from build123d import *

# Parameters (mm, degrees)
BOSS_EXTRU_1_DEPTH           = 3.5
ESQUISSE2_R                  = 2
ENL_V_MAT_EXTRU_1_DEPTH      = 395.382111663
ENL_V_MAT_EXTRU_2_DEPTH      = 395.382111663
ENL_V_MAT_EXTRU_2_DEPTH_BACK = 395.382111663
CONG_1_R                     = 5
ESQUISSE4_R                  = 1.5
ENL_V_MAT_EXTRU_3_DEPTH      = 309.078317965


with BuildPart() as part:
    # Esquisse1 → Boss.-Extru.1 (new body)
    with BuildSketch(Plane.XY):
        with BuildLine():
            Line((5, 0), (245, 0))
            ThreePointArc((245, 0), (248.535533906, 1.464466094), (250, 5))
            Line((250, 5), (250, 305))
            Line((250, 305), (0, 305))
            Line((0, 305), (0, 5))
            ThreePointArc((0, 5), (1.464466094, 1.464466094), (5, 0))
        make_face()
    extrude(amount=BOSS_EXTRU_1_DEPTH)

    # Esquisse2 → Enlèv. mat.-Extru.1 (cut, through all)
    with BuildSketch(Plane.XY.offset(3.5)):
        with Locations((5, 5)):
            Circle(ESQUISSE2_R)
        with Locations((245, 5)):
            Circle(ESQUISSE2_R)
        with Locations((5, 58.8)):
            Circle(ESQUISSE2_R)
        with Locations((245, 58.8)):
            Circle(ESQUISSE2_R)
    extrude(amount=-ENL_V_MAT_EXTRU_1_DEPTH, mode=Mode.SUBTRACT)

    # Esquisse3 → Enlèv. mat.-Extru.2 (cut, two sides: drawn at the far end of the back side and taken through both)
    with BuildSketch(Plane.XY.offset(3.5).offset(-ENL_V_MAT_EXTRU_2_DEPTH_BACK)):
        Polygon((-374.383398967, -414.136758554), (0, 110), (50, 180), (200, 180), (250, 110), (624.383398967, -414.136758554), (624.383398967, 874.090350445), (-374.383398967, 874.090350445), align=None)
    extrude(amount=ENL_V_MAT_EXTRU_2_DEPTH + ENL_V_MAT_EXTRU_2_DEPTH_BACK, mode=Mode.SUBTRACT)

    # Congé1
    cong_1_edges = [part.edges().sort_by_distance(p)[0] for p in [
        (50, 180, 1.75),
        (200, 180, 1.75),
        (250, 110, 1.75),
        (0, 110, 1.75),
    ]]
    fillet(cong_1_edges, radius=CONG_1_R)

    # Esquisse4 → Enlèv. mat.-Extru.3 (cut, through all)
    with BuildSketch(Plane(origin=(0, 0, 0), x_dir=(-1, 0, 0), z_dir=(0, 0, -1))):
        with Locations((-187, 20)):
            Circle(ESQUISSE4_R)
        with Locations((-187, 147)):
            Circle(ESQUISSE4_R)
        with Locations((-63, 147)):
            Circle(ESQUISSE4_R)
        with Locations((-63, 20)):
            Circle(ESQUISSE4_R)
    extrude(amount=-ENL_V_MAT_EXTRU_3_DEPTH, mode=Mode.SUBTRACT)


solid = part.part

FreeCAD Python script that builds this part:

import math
import FreeCAD as App
import Part
import Sketcher
from FreeCAD import Vector
Q = App.Units.Quantity


def edges_at(feature, points):
    """Names of the edges that pass closest to the given points."""
    edges = feature.Shape.Edges
    near = lambda p: min(range(len(edges)), key=lambda i: edges[i].distToShape(Part.Vertex(*p))[0])
    return sorted({f"Edge{near(p) + 1}" for p in points})

doc = App.newDocument("Part")
body = doc.addObject("PartDesign::Body", "Body")

# Sketch on XY plane
sketch1 = body.newObject("Sketcher::SketchObject", "Sketch")
sketch1.AttachmentSupport = (doc.getObject("XY_Plane"), [""])
sketch1.MapMode = "FlatFace"
sketch1.addGeometry(Part.LineSegment(Vector(5, 0, 0), Vector(245, 0, 0)), False)
sketch1.addGeometry(Part.ArcOfCircle(Part.Circle(Vector(245, 5, 0), Vector(0, 0, 1), 5), math.radians(-90), math.radians(0)), False)
sketch1.addGeometry(Part.LineSegment(Vector(250, 5, 0), Vector(250, 305, 0)), False)
sketch1.addGeometry(Part.LineSegment(Vector(250, 305, 0), Vector(0, 305, 0)), False)
sketch1.addGeometry(Part.LineSegment(Vector(0, 305, 0), Vector(0, 5, 0)), False)
sketch1.addGeometry(Part.ArcOfCircle(Part.Circle(Vector(5, 5, 0), Vector(0, 0, 1), 5), math.radians(180), math.radians(270)), False)
sketch1.addConstraint(Sketcher.Constraint("Tangent", 0, 2, 1, 1))
sketch1.addConstraint(Sketcher.Constraint("Tangent", 1, 2, 2, 1))
sketch1.addConstraint(Sketcher.Constraint("Coincident", 2, 2, 3, 1))
sketch1.addConstraint(Sketcher.Constraint("Coincident", 3, 2, 4, 1))
sketch1.addConstraint(Sketcher.Constraint("Tangent", 4, 2, 5, 1))
sketch1.addConstraint(Sketcher.Constraint("Tangent", 5, 2, 0, 1))
sketch1.addConstraint(Sketcher.Constraint("Horizontal", 0))
sketch1.addConstraint(Sketcher.Constraint("Vertical", 2))
sketch1.addConstraint(Sketcher.Constraint("Horizontal", 3))
sketch1.addConstraint(Sketcher.Constraint("Vertical", 4))
sketch1.addConstraint(Sketcher.Constraint("Equal", 1, 5))
sketch1.addConstraint(Sketcher.Constraint("PointOnObject", 0, 2, -1))
sketch1.addConstraint(Sketcher.Constraint("PointOnObject", 3, 2, -2))
sketch1.addConstraint(Sketcher.Constraint("Radius", 1, Q("5 mm")))
sketch1.addConstraint(Sketcher.Constraint("DistanceX", 0, 1, 0, 2, Q("240 mm")))
sketch1.addConstraint(Sketcher.Constraint("DistanceY", 2, 1, 2, 2, Q("300 mm")))
pad1 = body.newObject("PartDesign::Pad", "Pad")
pad1.Profile = sketch1
pad1.Length = 3.5

# Sketch on XY plane
sketch2 = body.newObject("Sketcher::SketchObject", "Sketch001")
sketch2.AttachmentSupport = (doc.getObject("XY_Plane"), [""])
sketch2.MapMode = "FlatFace"
sketch2.AttachmentOffset = App.Placement(Vector(0, 0, 3.5), App.Rotation())
sketch2.addGeometry(Part.Circle(Vector(5, 5, 0), Vector(0, 0, 1), 2), False)
sketch2.addGeometry(Part.Circle(Vector(245, 5, 0), Vector(0, 0, 1), 2), False)
sketch2.addGeometry(Part.Circle(Vector(5, 58.8, 0), Vector(0, 0, 1), 2), False)
sketch2.addGeometry(Part.Circle(Vector(245, 58.8, 0), Vector(0, 0, 1), 2), False)
sketch2.addConstraint(Sketcher.Constraint("Equal", 0, 1))
sketch2.addConstraint(Sketcher.Constraint("Equal", 1, 2))
sketch2.addConstraint(Sketcher.Constraint("Equal", 2, 3))
sketch2.addConstraint(Sketcher.Constraint("Horizontal", 0, 3, 1, 3))
sketch2.addConstraint(Sketcher.Constraint("Horizontal", 2, 3, 3, 3))
sketch2.addConstraint(Sketcher.Constraint("Vertical", 0, 3, 2, 3))
sketch2.addConstraint(Sketcher.Constraint("Vertical", 1, 3, 3, 3))
sketch2.addConstraint(Sketcher.Constraint("Diameter", 0, Q("4 mm")))
sketch2.addConstraint(Sketcher.Constraint("DistanceX", -1, 1, 0, 3, Q("5 mm")))
sketch2.addConstraint(Sketcher.Constraint("DistanceY", -1, 1, 0, 3, Q("5 mm")))
sketch2.addConstraint(Sketcher.Constraint("DistanceX", -1, 1, 1, 3, Q("245 mm")))
sketch2.addConstraint(Sketcher.Constraint("DistanceY", -1, 1, 2, 3, Q("58.8 mm")))
pocket1 = body.newObject("PartDesign::Pocket", "Pocket")
pocket1.Profile = sketch2
pocket1.Type = "ThroughAll"

# Sketch on XY plane
sketch3 = body.newObject("Sketcher::SketchObject", "Sketch002")
sketch3.AttachmentSupport = (doc.getObject("XY_Plane"), [""])
sketch3.MapMode = "FlatFace"
sketch3.AttachmentOffset = App.Placement(Vector(0, 0, 3.5), App.Rotation())
sketch3.addGeometry(Part.LineSegment(Vector(-374, -414, 0), Vector(50, 180, 0)), False)
sketch3.addGeometry(Part.LineSegment(Vector(50, 180, 0), Vector(200, 180, 0)), False)
sketch3.addGeometry(Part.LineSegment(Vector(200, 180, 0), Vector(624, -414, 0)), False)
sketch3.addGeometry(Part.LineSegment(Vector(624, -414, 0), Vector(624, 874, 0)), False)
sketch3.addGeometry(Part.LineSegment(Vector(624, 874, 0), Vector(-374, 874, 0)), False)
sketch3.addGeometry(Part.LineSegment(Vector(-374, 874, 0), Vector(-374, -414, 0)), False)
sketch3.addConstraint(Sketcher.Constraint("Coincident", 0, 2, 1, 1))
sketch3.addConstraint(Sketcher.Constraint("Coincident", 1, 2, 2, 1))
sketch3.addConstraint(Sketcher.Constraint("Coincident", 2, 2, 3, 1))
sketch3.addConstraint(Sketcher.Constraint("Coincident", 3, 2, 4, 1))
sketch3.addConstraint(Sketcher.Constraint("Coincident", 4, 2, 5, 1))
sketch3.addConstraint(Sketcher.Constraint("Coincident", 5, 2, 0, 1))
sketch3.addConstraint(Sketcher.Constraint("Horizontal", 1))
sketch3.addConstraint(Sketcher.Constraint("Vertical", 3))
sketch3.addConstraint(Sketcher.Constraint("Horizontal", 4))
sketch3.addConstraint(Sketcher.Constraint("Vertical", 5))
sketch3.addConstraint(Sketcher.Constraint("Horizontal", 2, 2, 5, 2))
sketch3.addConstraint(Sketcher.Constraint("Equal", 0, 2))
sketch3.addConstraint(Sketcher.Constraint("DistanceX", 1, 1, 1, 2, Q("150 mm")))
sketch3.addConstraint(Sketcher.Constraint("DistanceX", -1, 1, 0, 2, Q("50 mm")))
sketch3.addConstraint(Sketcher.Constraint("DistanceY", -1, 1, 0, 2, Q("180 mm")))
sketch3.addConstraint(Sketcher.Constraint("DistanceY", 3, 1, 3, 2, Q("1288.227109 mm")))
sketch3.addConstraint(Sketcher.Constraint("DistanceX", -1, 1, 2, 2, Q("624.383399 mm")))
sketch3.addConstraint(Sketcher.Constraint("DistanceY", 2, 2, -1, 1, Q("414.136759 mm")))
pocket2 = body.newObject("PartDesign::Pocket", "Pocket001")
pocket2.Profile = sketch3
pocket2.Type = "ThroughAll"
pocket2.Midplane = True
doc.recompute()

fillet = body.newObject("PartDesign::Fillet", "Fillet")
fillet.Base = (pocket2, edges_at(pocket2, [
    (50, 180, 1.75),
    (200, 180, 1.75),
    (250, 110, 1.75),
    (0, 110, 1.75),
]))
fillet.Radius = 5

# Sketch on XY plane
sketch4 = body.newObject("Sketcher::SketchObject", "Sketch003")
sketch4.AttachmentSupport = (doc.getObject("XY_Plane"), [""])
sketch4.MapMode = "FlatFace"
sketch4.addGeometry(Part.Circle(Vector(187, 20, 0), Vector(0, 0, 1), 1.5), False)
sketch4.addGeometry(Part.Circle(Vector(187, 147, 0), Vector(0, 0, 1), 1.5), False)
sketch4.addGeometry(Part.Circle(Vector(63, 147, 0), Vector(0, 0, 1), 1.5), False)
sketch4.addGeometry(Part.Circle(Vector(63, 20, 0), Vector(0, 0, 1), 1.5), False)
sketch4.addConstraint(Sketcher.Constraint("Equal", 0, 1))
sketch4.addConstraint(Sketcher.Constraint("Equal", 1, 2))
sketch4.addConstraint(Sketcher.Constraint("Equal", 2, 3))
sketch4.addConstraint(Sketcher.Constraint("Horizontal", 1, 3, 2, 3))
sketch4.addConstraint(Sketcher.Constraint("Horizontal", 0, 3, 3, 3))
sketch4.addConstraint(Sketcher.Constraint("Vertical", 0, 3, 1, 3))
sketch4.addConstraint(Sketcher.Constraint("Vertical", 2, 3, 3, 3))
sketch4.addConstraint(Sketcher.Constraint("Diameter", 0, Q("3 mm")))
sketch4.addConstraint(Sketcher.Constraint("DistanceX", -1, 1, 0, 3, Q("187 mm")))
sketch4.addConstraint(Sketcher.Constraint("DistanceY", -1, 1, 0, 3, Q("20 mm")))
sketch4.addConstraint(Sketcher.Constraint("DistanceY", -1, 1, 1, 3, Q("147 mm")))
sketch4.addConstraint(Sketcher.Constraint("DistanceX", -1, 1, 2, 3, Q("63 mm")))
pocket3 = body.newObject("PartDesign::Pocket", "Pocket002")
pocket3.Profile = sketch4
pocket3.Type = "ThroughAll"
pocket3.Reversed = True

doc.recompute()
